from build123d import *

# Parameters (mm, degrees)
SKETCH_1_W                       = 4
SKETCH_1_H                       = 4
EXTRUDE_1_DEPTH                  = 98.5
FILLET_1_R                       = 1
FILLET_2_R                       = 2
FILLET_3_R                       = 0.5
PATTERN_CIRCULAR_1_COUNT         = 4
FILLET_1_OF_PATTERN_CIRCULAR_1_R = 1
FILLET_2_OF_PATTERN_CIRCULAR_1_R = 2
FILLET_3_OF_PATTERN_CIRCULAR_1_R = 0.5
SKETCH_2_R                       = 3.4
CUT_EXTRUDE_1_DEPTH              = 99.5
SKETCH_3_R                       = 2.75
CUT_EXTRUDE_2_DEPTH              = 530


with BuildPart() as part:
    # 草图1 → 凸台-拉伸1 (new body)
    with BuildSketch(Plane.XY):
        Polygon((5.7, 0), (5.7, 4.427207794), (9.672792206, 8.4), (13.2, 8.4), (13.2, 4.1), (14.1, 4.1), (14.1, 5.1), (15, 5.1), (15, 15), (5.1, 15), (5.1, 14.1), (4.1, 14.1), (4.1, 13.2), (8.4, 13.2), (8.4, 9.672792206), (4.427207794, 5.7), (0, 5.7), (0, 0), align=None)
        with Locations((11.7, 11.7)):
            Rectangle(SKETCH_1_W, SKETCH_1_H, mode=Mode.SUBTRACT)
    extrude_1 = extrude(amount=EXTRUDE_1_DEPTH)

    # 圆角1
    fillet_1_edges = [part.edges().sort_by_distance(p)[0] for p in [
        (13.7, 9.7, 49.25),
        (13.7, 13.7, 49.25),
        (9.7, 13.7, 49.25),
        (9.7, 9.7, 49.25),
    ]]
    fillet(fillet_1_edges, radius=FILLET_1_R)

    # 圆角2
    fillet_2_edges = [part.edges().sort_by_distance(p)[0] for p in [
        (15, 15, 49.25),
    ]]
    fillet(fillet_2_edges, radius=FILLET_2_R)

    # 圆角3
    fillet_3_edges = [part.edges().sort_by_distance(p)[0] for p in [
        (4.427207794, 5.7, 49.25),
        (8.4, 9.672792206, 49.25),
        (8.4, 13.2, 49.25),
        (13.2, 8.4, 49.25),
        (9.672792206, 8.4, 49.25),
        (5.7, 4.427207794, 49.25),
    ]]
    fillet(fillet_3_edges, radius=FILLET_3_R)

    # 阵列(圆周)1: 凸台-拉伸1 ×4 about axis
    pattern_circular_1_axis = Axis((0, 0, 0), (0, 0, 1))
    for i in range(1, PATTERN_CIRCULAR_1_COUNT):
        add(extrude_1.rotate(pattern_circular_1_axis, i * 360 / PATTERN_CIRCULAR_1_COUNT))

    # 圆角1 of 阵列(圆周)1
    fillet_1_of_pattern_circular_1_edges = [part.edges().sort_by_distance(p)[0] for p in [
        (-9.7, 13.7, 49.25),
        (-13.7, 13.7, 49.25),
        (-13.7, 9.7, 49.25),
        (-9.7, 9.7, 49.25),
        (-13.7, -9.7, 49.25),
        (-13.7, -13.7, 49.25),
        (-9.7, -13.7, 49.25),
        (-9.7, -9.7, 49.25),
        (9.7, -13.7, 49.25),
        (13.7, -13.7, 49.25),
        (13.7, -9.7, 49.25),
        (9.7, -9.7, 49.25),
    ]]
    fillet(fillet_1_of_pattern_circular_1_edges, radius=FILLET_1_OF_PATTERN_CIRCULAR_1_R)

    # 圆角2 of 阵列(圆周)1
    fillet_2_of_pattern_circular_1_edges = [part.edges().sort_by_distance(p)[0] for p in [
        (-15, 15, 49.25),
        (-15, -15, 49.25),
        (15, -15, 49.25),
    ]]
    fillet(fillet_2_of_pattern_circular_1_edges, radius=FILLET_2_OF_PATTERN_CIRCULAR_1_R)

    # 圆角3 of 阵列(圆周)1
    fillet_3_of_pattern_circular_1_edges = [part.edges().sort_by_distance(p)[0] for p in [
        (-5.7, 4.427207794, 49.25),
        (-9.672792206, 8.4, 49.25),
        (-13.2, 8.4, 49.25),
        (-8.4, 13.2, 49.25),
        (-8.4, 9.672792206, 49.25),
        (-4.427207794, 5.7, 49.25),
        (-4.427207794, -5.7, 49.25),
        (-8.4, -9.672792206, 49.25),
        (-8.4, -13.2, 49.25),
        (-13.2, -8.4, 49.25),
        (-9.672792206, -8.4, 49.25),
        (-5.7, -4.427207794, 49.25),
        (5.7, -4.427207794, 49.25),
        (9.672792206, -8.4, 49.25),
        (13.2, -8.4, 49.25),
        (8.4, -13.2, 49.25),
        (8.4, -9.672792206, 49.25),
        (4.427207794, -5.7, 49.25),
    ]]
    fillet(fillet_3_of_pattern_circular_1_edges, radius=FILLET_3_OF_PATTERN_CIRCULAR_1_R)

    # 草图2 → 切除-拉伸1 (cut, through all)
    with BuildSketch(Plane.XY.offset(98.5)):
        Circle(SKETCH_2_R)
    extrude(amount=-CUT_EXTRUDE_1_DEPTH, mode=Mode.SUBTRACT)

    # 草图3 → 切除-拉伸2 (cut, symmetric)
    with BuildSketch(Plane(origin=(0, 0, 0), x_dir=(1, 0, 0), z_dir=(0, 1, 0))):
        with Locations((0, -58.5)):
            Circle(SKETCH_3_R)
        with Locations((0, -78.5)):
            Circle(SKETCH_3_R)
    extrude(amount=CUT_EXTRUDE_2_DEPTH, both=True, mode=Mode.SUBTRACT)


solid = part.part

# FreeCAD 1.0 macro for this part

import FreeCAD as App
import Part
import Sketcher
from FreeCAD import Vector
Q = App.Units.Quantity


def edges_at(feature, points):
    """Names of the edges that pass closest to the given points."""
    edges = feature.Shape.Edges
    near = lambda p: min(range(len(edges)), key=lambda i: edges[i].distToShape(Part.Vertex(*p))[0])
    return sorted({f"Edge{near(p) + 1}" for p in points})


def add_polygon(sketch, points):
    """Adds a closed chain of lines whose ends are joined by coincident constraints."""
    first, n = sketch.GeometryCount, len(points)
    for a, b in zip(points, points[1:] + points[:1]):
        sketch.addGeometry(Part.LineSegment(App.Vector(*a, 0), App.Vector(*b, 0)), False)
    for i in range(n):
        sketch.addConstraint(Sketcher.Constraint("Coincident", first + i, 2, first + (i + 1) % n, 1))

doc = App.newDocument("Part")
body = doc.addObject("PartDesign::Body", "Body")

sketch1 = body.newObject("Sketcher::SketchObject", "Sketch")
sketch1.AttachmentSupport = (doc.getObject("XY_Plane"), [""])
sketch1.MapMode = "FlatFace"
add_polygon(sketch1, [(5.7, 0), (5.7, 4.4), (9.7, 8.4), (13.2, 8.4), (13.2, 4.1), (14.1, 4.1), (14.1, 5.1), (15, 5.1), (15, 15), (5.1, 15), (5.1, 14.1), (4.1, 14.1), (4.1, 13.2), (8.4, 13.2), (8.4, 9.7), (4.4, 5.7), (0, 5.7), (0, 0)])
add_polygon(sketch1, [(13.7, 9.7), (9.7, 9.7), (9.7, 13.7), (13.7, 13.7)])
sketch1.addConstraint([
    Sketcher.Constraint("Vertical", 0),
    Sketcher.Constraint("Horizontal", 2),
    Sketcher.Constraint("Vertical", 3),
    Sketcher.Constraint("Horizontal", 4),
    Sketcher.Constraint("Vertical", 5),
    Sketcher.Constraint("Horizontal", 6),
    Sketcher.Constraint("Vertical", 7),
    Sketcher.Constraint("Horizontal", 8),
    Sketcher.Constraint("Vertical", 9),
    Sketcher.Constraint("Horizontal", 10),
    Sketcher.Constraint("Vertical", 11),
    Sketcher.Constraint("Horizontal", 12),
    Sketcher.Constraint("Vertical", 13),
    Sketcher.Constraint("Horizontal", 15),
    Sketcher.Constraint("Vertical", 16),
    Sketcher.Constraint("Horizontal", 17),
    Sketcher.Constraint("Horizontal", 18),
    Sketcher.Constraint("Vertical", 19),
    Sketcher.Constraint("Horizontal", 20),
    Sketcher.Constraint("Vertical", 21),
    Sketcher.Constraint("Coincident", 16, 2, -1, 1),
    Sketcher.Constraint("Parallel", 1, 14),
    Sketcher.Constraint("Equal", 4, 6),
    Sketcher.Constraint("Equal", 15, 0),
    Sketcher.Constraint("Equal", 12, 3),
    Sketcher.Constraint("Equal", 10, 5),
    Sketcher.Constraint("Equal", 8, 7),
    Sketcher.Constraint("Equal", 6, 9),
    Sketcher.Constraint("Equal", 9, 11),
    Sketcher.Constraint("Equal", 2, 13),
    Sketcher.Constraint("Equal", 17, 16),
    Sketcher.Constraint("Equal", 20, 19),
    Sketcher.Constraint("DistanceX", 10, 2, 10, 1, Q("1 mm")),
    Sketcher.Constraint("DistanceX", 18, 2, 18, 1, Q("4 mm")),
    Sketcher.Constraint("Angle", 1, Q("45 deg")),
    Sketcher.Constraint("DistanceX", 4, 1, 4, 2, Q("0.9 mm")),
    Sketcher.Constraint("DistanceX", 8, 2, 8, 1, Q("9.9 mm")),
    Sketcher.Constraint("DistanceX", 12, 1, 12, 2, Q("4.3 mm")),
    Sketcher.Constraint("DistanceX", 17, 1, 17, 2, Q("5.7 mm")),
    Sketcher.Constraint("DistanceX", -1, 1, 6, 2, Q("15 mm")),
    Sketcher.Constraint("DistanceX", -1, 1, 18, 2, Q("9.7 mm")),
    Sketcher.Constraint("DistanceY", -1, 1, 18, 2, Q("9.7 mm")),
    Sketcher.Constraint("DistanceX", 2, 1, 2, 2, Q("3.527208 mm")),
])
pad1 = body.newObject("PartDesign::Pad", "Pad")
pad1.Profile = sketch1
pad1.Length = 98.5
doc.recompute()

fillet = body.newObject("PartDesign::Fillet", "Fillet")
fillet.Base = (pad1, edges_at(pad1, [
    (13.7, 9.7, 49.25),
    (13.7, 13.7, 49.25),
    (9.7, 13.7, 49.25),
    (9.7, 9.7, 49.25),
]))
fillet.Radius = 1
doc.recompute()

fillet2 = body.newObject("PartDesign::Fillet", "Fillet001")
fillet2.Base = (fillet, edges_at(fillet, [(15, 15, 49.25)]))
fillet2.Radius = 2
doc.recompute()

fillet3 = body.newObject("PartDesign::Fillet", "Fillet002")
fillet3.Base = (fillet2, edges_at(fillet2, [
    (4.427, 5.7, 49.25),
    (8.4, 9.673, 49.25),
    (8.4, 13.2, 49.25),
    (13.2, 8.4, 49.25),
    (9.673, 8.4, 49.25),
    (5.7, 4.427, 49.25),
]))
fillet3.Radius = 0.5
doc.recompute()

polarpattern = body.newObject("PartDesign::PolarPattern", "PolarPattern")
polarpattern.Originals = [pad1]
polarpattern.Axis = (doc.getObject("Z_Axis"), [""])
polarpattern.Angle = 360
polarpattern.Occurrences = 4
body.Tip = polarpattern
doc.recompute()

fillet4 = body.newObject("PartDesign::Fillet", "Fillet003")
fillet4.Base = (polarpattern, edges_at(polarpattern, [
    (-9.7, 13.7, 49.25),
    (-13.7, 13.7, 49.25),
    (-13.7, 9.7, 49.25),
    (-9.7, 9.7, 49.25),
    (-13.7, -9.7, 49.25),
    (-13.7, -13.7, 49.25),
    (-9.7, -13.7, 49.25),
    (-9.7, -9.7, 49.25),
    (9.7, -13.7, 49.25),
    (13.7, -13.7, 49.25),
    (13.7, -9.7, 49.25),
    (9.7, -9.7, 49.25),
]))
fillet4.Radius = 1
doc.recompute()

fillet5 = body.newObject("PartDesign::Fillet", "Fillet004")
fillet5.Base = (fillet4, edges_at(fillet4, [(-15, 15, 49.25), (-15, -15, 49.25), (15, -15, 49.25)]))
fillet5.Radius = 2
doc.recompute()

fillet6 = body.newObject("PartDesign::Fillet", "Fillet005")
fillet6.Base = (fillet5, edges_at(fillet5, [
    (-5.7, 4.427, 49.25),
    (-9.673, 8.4, 49.25),
    (-13.2, 8.4, 49.25),
    (-8.4, 13.2, 49.25),
    (-8.4, 9.673, 49.25),
    (-4.427, 5.7, 49.25),
    (-4.427, -5.7, 49.25),
    (-8.4, -9.673, 49.25),
    (-8.4, -13.2, 49.25),
    (-13.2, -8.4, 49.25),
    (-9.673, -8.4, 49.25),
    (-5.7, -4.427, 49.25),
    (5.7, -4.427, 49.25),
    (9.673, -8.4, 49.25),
    (13.2, -8.4, 49.25),
    (8.4, -13.2, 49.25),
    (8.4, -9.673, 49.25),
    (4.427, -5.7, 49.25),
]))
fillet6.Radius = 0.5

sketch2 = body.newObject("Sketcher::SketchObject", "Sketch001")
sketch2.AttachmentSupport = (doc.getObject("XY_Plane"), [""])
sketch2.MapMode = "FlatFace"
sketch2.AttachmentOffset = App.Placement(Vector(0, 0, 98.5), App.Rotation())
sketch2.addGeometry(Part.Circle(Vector(0, 0, 0), Vector(0, 0, 1), 3.4), False)
sketch2.addConstraint([
    Sketcher.Constraint("Coincident", 0, 3, -1, 1),
    Sketcher.Constraint("Diameter", 0, Q("6.8 mm")),
])
pocket1 = body.newObject("PartDesign::Pocket", "Pocket")
pocket1.Profile = sketch2
pocket1.Type = "ThroughAll"

sketch3 = body.newObject("Sketcher::SketchObject", "Sketch002")
sketch3.AttachmentSupport = (doc.getObject("XZ_Plane"), [""])
sketch3.MapMode = "FlatFace"
sketch3.addGeometry([
    Part.Circle(Vector(0, 58.5, 0), Vector(0, 0, 1), 2.8),
    Part.Circle(Vector(0, 78.5, 0), Vector(0, 0, 1), 2.8),
], False)
sketch3.addConstraint([
    Sketcher.Constraint("Equal", 0, 1),
    Sketcher.Constraint("PointOnObject", 0, 3, -2),
    Sketcher.Constraint("PointOnObject", 1, 3, -2),
    Sketcher.Constraint("Diameter", 0, Q("5.5 mm")),
    Sketcher.Constraint("DistanceY", 0, 3, 1, 3, Q("20 mm")),
    Sketcher.Constraint("DistanceY", -1, 1, 0, 3, Q("58.5 mm")),
])
pocket2 = body.newObject("PartDesign::Pocket", "Pocket001")
pocket2.Profile = sketch3
pocket2.Length = 1060
pocket2.Midplane = True

doc.recompute()
